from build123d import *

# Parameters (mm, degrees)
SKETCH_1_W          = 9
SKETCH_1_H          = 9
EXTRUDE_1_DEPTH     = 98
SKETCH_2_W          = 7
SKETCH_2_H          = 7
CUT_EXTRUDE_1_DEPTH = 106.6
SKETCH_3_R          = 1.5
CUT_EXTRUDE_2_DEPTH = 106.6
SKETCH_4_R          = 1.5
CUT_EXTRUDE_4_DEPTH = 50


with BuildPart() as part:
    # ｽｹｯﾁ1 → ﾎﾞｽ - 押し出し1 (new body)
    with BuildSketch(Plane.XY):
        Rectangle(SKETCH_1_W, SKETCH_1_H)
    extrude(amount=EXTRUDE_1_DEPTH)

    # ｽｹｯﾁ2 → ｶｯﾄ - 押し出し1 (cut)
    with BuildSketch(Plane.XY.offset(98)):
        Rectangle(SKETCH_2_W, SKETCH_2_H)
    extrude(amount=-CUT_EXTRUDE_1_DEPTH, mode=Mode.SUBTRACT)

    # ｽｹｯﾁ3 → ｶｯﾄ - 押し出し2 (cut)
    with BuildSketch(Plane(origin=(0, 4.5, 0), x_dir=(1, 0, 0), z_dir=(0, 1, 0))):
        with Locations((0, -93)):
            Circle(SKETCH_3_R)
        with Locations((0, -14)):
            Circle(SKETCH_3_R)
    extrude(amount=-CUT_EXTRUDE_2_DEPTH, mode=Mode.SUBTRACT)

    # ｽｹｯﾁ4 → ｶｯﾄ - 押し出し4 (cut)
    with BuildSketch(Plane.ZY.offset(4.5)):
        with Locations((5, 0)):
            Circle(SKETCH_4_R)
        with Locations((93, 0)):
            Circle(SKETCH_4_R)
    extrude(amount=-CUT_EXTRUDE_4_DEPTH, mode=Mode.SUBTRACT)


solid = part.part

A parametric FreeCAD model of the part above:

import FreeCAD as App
import Part
import Sketcher
Q = App.Units.Quantity


def add_polygon(sketch, points):
    """Adds a closed chain of lines whose ends are joined by coincident constraints."""
    first, n = sketch.GeometryCount, len(points)
    for a, b in zip(points, points[1:] + points[:1]):
        sketch.addGeometry(Part.LineSegment(App.Vector(*a, 0), App.Vector(*b, 0)), False)
    for i in range(n):
        sketch.addConstraint(Sketcher.Constraint("Coincident", first + i, 2, first + (i + 1) % n, 1))

doc = App.newDocument("Part")
body = doc.addObject("PartDesign::Body", "Body")

sketch1 = doc.addObject("Sketcher::SketchObject", "Sketch")
body.addObject(sketch1)
sketch1.AttachmentSupport = (doc.XY_Plane, [""])
sketch1.MapMode = "FlatFace"
add_polygon(sketch1, [(-4, 4), (-4, -4), (4, -4), (4, 4)])
sketch1.addConstraint([
    Sketcher.Constraint("Vertical", 0),
    Sketcher.Constraint("Horizontal", 1),
    Sketcher.Constraint("Vertical", 2),
    Sketcher.Constraint("Horizontal", 3),
    Sketcher.Constraint("Symmetric", 0, 2, 2, 2, -1, 1),
    Sketcher.Constraint("Equal", 3, 0),
    Sketcher.Constraint("DistanceX", 1, 1, 1, 2, Q("9 mm")),
])
pad1 = doc.addObject("PartDesign::Pad", "Pad")
body.addObject(pad1)
pad1.Profile = sketch1
pad1.Length = 98

sketch2 = doc.addObject("Sketcher::SketchObject", "Sketch001")
body.addObject(sketch2)
sketch2.AttachmentSupport = (doc.XY_Plane, [""])
sketch2.MapMode = "FlatFace"
sketch2.AttachmentOffset = App.Placement(App.Vector(0, 0, 98), App.Rotation())
add_polygon(sketch2, [(-4, 4), (-4, -4), (4, -4), (4, 4)])
sketch2.addConstraint([
    Sketcher.Constraint("Vertical", 0),
    Sketcher.Constraint("Horizontal", 1),
    Sketcher.Constraint("Vertical", 2),
    Sketcher.Constraint("Horizontal", 3),
    Sketcher.Constraint("Symmetric", 0, 2, 2, 2, -1, 1),
    Sketcher.Constraint("Equal", 3, 0),
    Sketcher.Constraint("DistanceX", 1, 1, 1, 2, Q("7 mm")),
])
pocket1 = doc.addObject("PartDesign::Pocket", "Pocket")
body.addObject(pocket1)
pocket1.Profile = sketch2
pocket1.Length = 106.6

sketch3 = doc.addObject("Sketcher::SketchObject", "Sketch002")
body.addObject(sketch3)
sketch3.AttachmentSupport = (doc.XZ_Plane, [""])
sketch3.MapMode = "FlatFace"
sketch3.AttachmentOffset = App.Placement(App.Vector(0, 0, -4.5), App.Rotation())
sketch3.addGeometry([
    Part.Circle(App.Vector(0, 93, 0), App.Vector(0, 0, 1), 1.5),
    Part.Circle(App.Vector(0, 14, 0), App.Vector(0, 0, 1), 1.5),
], False)
sketch3.addConstraint([
    Sketcher.Constraint("Equal", 0, 1),
    Sketcher.Constraint("PointOnObject", 0, 3, -2),
    Sketcher.Constraint("PointOnObject", 1, 3, -2),
    Sketcher.Constraint("Diameter", 0, Q("3 mm")),
    Sketcher.Constraint("DistanceY", -1, 1, 0, 3, Q("93 mm")),
    Sketcher.Constraint("DistanceY", -1, 1, 1, 3, Q("14 mm")),
])
pocket2 = doc.addObject("PartDesign::Pocket", "Pocket001")
body.addObject(pocket2)
pocket2.Profile = sketch3
pocket2.Length = 106.6
pocket2.Reversed = True

sketch4 = doc.addObject("Sketcher::SketchObject", "Sketch003")
body.addObject(sketch4)
sketch4.AttachmentSupport = (doc.YZ_Plane, [""])
sketch4.MapMode = "FlatFace"
sketch4.AttachmentOffset = App.Placement(App.Vector(0, 0, -4.5), App.Rotation())
sketch4.addGeometry([
    Part.Circle(App.Vector(0, 5, 0), App.Vector(0, 0, 1), 1.5),
    Part.Circle(App.Vector(0, 93, 0), App.Vector(0, 0, 1), 1.5),
], False)
sketch4.addConstraint([
    Sketcher.Constraint("Equal", 0, 1),
    Sketcher.Constraint("PointOnObject", 0, 3, -2),
    Sketcher.Constraint("PointOnObject", 1, 3, -2),
    Sketcher.Constraint("Diameter", 0, Q("3 mm")),
    Sketcher.Constraint("DistanceY", -1, 1, 0, 3, Q("5 mm")),
    Sketcher.Constraint("DistanceY", -1, 1, 1, 3, Q("93 mm")),
])
pocket3 = doc.addObject("PartDesign::Pocket", "Pocket002")
body.addObject(pocket3)
pocket3.Profile = sketch4
pocket3.Length = 50
pocket3.Reversed = True

doc.recompute()
